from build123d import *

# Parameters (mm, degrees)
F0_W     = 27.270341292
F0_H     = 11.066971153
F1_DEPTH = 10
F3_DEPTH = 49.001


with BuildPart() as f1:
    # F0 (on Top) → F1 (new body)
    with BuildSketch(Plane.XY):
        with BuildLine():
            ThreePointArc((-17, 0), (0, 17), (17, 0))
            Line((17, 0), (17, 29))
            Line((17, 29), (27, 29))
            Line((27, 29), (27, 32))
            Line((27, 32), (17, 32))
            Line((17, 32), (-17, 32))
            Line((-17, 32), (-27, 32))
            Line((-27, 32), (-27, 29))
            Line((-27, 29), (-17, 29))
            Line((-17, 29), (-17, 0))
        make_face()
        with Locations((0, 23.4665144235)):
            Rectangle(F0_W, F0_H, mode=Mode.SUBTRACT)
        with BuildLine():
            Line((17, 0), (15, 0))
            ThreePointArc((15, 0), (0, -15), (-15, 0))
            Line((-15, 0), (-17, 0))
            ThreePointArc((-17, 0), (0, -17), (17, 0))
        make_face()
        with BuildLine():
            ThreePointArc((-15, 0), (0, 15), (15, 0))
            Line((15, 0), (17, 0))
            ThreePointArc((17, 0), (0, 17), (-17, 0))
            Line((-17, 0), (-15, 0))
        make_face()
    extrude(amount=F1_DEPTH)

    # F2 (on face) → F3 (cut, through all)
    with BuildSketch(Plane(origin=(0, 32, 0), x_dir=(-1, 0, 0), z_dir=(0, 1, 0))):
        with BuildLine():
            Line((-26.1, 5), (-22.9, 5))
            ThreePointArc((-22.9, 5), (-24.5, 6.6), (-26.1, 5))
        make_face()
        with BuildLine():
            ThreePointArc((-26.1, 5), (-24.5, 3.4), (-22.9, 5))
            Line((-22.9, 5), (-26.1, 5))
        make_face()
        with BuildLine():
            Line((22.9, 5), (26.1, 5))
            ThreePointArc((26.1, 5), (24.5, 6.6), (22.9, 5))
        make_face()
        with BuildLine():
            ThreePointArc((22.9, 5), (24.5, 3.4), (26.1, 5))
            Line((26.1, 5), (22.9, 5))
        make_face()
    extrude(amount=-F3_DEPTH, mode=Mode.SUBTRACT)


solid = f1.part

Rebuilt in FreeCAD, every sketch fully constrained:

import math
import FreeCAD as App
import Part
import Sketcher

V = App.Vector
Q = App.Units.Quantity

doc = App.newDocument("Part")
body = doc.addObject("PartDesign::Body", "Body")

sketch1 = body.newObject("Sketcher::SketchObject", "Sketch")
sketch1.AttachmentSupport = (doc.getObject("XY_Plane"), [""])
sketch1.MapMode = "FlatFace"
sketch1.addGeometry([
    Part.LineSegment(V(-17, 29, 0), V(-17, 0, 0)),
    Part.ArcOfCircle(Part.Circle(V(0, 0, 0), V(0, 0, 1), 17), math.radians(180), math.radians(360)),
    Part.LineSegment(V(17, 0, 0), V(17, 29, 0)),
    Part.LineSegment(V(17, 29, 0), V(27, 29, 0)),
    Part.LineSegment(V(27, 29, 0), V(27, 32, 0)),
    Part.LineSegment(V(27, 32, 0), V(-27, 32, 0)),
    Part.LineSegment(V(-27, 32, 0), V(-27, 29, 0)),
    Part.LineSegment(V(-27, 29, 0), V(-17, 29, 0)),
    Part.LineSegment(V(13.6, 17.9, 0), V(-13.6, 17.9, 0)),
    Part.LineSegment(V(-13.6, 17.9, 0), V(-13.6, 29, 0)),
    Part.LineSegment(V(-13.6, 29, 0), V(13.6, 29, 0)),
    Part.LineSegment(V(13.6, 29, 0), V(13.6, 17.9, 0)),
    Part.Circle(V(0, 0, 0), V(0, 0, 1), 15),
], False)
sketch1.addConstraint([
    Sketcher.Constraint("Tangent", 0, 2, 1, 1),
    Sketcher.Constraint("Tangent", 1, 2, 2, 1),
    Sketcher.Constraint("Coincident", 2, 2, 3, 1),
    Sketcher.Constraint("Coincident", 3, 2, 4, 1),
    Sketcher.Constraint("Coincident", 4, 2, 5, 1),
    Sketcher.Constraint("Coincident", 5, 2, 6, 1),
    Sketcher.Constraint("Coincident", 6, 2, 7, 1),
    Sketcher.Constraint("Coincident", 7, 2, 0, 1),
    Sketcher.Constraint("Coincident", 8, 2, 9, 1),
    Sketcher.Constraint("Coincident", 9, 2, 10, 1),
    Sketcher.Constraint("Coincident", 10, 2, 11, 1),
    Sketcher.Constraint("Coincident", 11, 2, 8, 1),
    Sketcher.Constraint("Vertical", 0),
    Sketcher.Constraint("Vertical", 2),
    Sketcher.Constraint("Horizontal", 3),
    Sketcher.Constraint("Vertical", 4),
    Sketcher.Constraint("Horizontal", 5),
    Sketcher.Constraint("Vertical", 6),
    Sketcher.Constraint("Horizontal", 7),
    Sketcher.Constraint("Horizontal", 8),
    Sketcher.Constraint("Vertical", 9),
    Sketcher.Constraint("Horizontal", 10),
    Sketcher.Constraint("Vertical", 11),
    Sketcher.Constraint("Coincident", 1, 3, -1, 1),
    Sketcher.Constraint("Coincident", 12, 3, -1, 1),
    Sketcher.Constraint("Symmetric", 3, 2, 6, 2, -2),
    Sketcher.Constraint("Horizontal", 7, 2, 9, 2),
    Sketcher.Constraint("Diameter", 12, Q("30 mm")),
    Sketcher.Constraint("Radius", 1, Q("17 mm")),
    Sketcher.Constraint("DistanceX", 3, 1, 3, 2, Q("10 mm")),
    Sketcher.Constraint("DistanceY", 0, 2, 0, 1, Q("29 mm")),
    Sketcher.Constraint("DistanceY", 4, 1, 4, 2, Q("3 mm")),
    Sketcher.Constraint("DistanceX", 8, 2, 8, 1, Q("27.270341 mm")),
    Sketcher.Constraint("DistanceY", 9, 1, 9, 2, Q("11.066971 mm")),
    Sketcher.Constraint("DistanceX", 8, 2, -1, 1, Q("13.635171 mm")),
])
pad1 = body.newObject("PartDesign::Pad", "Pad")
pad1.Profile = sketch1
pad1.Length = 10

sketch2 = body.newObject("Sketcher::SketchObject", "Sketch001")
sketch2.AttachmentSupport = (doc.getObject("XZ_Plane"), [""])
sketch2.MapMode = "FlatFace"
sketch2.AttachmentOffset = App.Placement(V(0, 0, -32), App.Rotation())
sketch2.addGeometry([
    Part.Circle(V(24.5, 5, 0), V(0, 0, 1), 1.6),
    Part.Circle(V(-24.5, 5, 0), V(0, 0, 1), 1.6),
], False)
sketch2.addConstraint([
    Sketcher.Constraint("Equal", 0, 1),
    Sketcher.Constraint("Symmetric", 0, 3, 1, 3, -2),
    Sketcher.Constraint("Diameter", 0, Q("3.2 mm")),
    Sketcher.Constraint("DistanceY", -1, 1, 0, 3, Q("5 mm")),
    Sketcher.Constraint("DistanceX", 1, 3, 0, 3, Q("49 mm")),
])
pocket1 = body.newObject("PartDesign::Pocket", "Pocket")
pocket1.Profile = sketch2
pocket1.Type = "ThroughAll"
pocket1.Reversed = True

doc.recompute()
